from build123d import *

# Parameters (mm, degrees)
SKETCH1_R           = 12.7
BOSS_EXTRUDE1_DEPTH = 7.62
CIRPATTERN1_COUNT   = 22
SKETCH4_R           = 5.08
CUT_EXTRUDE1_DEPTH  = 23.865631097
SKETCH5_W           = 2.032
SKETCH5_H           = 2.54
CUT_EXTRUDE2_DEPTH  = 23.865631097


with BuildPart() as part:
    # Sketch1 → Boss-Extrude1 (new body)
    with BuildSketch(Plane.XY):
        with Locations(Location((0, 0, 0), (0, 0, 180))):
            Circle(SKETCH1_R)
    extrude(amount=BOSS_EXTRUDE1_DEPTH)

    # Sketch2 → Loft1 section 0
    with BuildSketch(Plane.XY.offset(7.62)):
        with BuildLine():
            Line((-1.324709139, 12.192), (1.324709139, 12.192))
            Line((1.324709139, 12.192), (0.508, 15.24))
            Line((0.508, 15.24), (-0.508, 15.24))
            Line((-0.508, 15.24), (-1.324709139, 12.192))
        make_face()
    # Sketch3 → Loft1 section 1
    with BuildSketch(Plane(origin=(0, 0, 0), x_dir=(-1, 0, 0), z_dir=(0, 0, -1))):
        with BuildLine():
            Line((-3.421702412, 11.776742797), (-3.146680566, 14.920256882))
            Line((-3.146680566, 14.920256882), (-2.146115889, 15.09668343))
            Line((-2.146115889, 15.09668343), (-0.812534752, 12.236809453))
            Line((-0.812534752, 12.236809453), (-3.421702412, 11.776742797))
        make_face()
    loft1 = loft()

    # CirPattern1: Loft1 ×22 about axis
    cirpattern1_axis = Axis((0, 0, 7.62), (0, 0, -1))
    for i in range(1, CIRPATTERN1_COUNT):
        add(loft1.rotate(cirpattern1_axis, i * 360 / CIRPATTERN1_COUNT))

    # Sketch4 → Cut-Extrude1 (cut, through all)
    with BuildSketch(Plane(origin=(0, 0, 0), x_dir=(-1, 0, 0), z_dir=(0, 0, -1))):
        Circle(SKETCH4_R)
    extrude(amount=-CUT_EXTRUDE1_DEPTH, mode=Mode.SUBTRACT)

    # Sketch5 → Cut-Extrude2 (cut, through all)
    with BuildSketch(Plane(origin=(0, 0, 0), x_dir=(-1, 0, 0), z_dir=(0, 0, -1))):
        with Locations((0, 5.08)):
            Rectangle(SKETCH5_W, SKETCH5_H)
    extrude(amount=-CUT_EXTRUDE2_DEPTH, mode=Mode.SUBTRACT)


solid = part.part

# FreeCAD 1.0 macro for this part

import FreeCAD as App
import Part
import Sketcher

V = App.Vector
Q = App.Units.Quantity

doc = App.newDocument("Part")
params = doc.addObject("Spreadsheet::Sheet", "Params")
for row, (alias, value) in enumerate([
    ("sketch1_diameter", "1 in"),
    ("pad1_length", "0.3 in"),
    ("sketch2_width", "0.04 in"),
    ("sketch3_length", "0.04 in"),
    ("sketch4_diameter", "0.4 in"),
    ("sketch5_height", "0.1 in"),
    ("sketch5_width", "0.08 in"),
], start=1):
    params.set(f"A{row}", alias)
    params.set(f"B{row}", "=" + value)
    params.setAlias(f"B{row}", alias)

body = doc.addObject("PartDesign::Body", "Body")

# Sketch on XY plane
sketch1 = doc.addObject("Sketcher::SketchObject", "Sketch")
body.addObject(sketch1)
sketch1.AttachmentSupport = (doc.XY_Plane, [""])
sketch1.MapMode = "FlatFace"
sketch1.addGeometry(Part.Circle(V(0, 0, 0), V(0, 0, 1), 12.7), False)
sketch1.addConstraint([
    Sketcher.Constraint("Coincident", 0, 3, -1, 1),
    Sketcher.Constraint("Diameter", 0, Q("1 in")),
])
sketch1.setExpression("Constraints[1]", "Params.sketch1_diameter")
pad1 = doc.addObject("PartDesign::Pad", "Pad")
body.addObject(pad1)
pad1.Profile = sketch1
pad1.setExpression("Length", "Params.pad1_length")

# Sketch on XY plane
sketch2 = doc.addObject("Sketcher::SketchObject", "Sketch001")
body.addObject(sketch2)
sketch2.AttachmentSupport = (doc.XY_Plane, [""])
sketch2.MapMode = "FlatFace"
sketch2.AttachmentOffset = App.Placement(V(0, 0, 0.3 * 25.4), App.Rotation())
sketch2.addGeometry([
    Part.LineSegment(V(-1.324709, 12.192, 0), V(1.324709, 12.192, 0)),
    Part.LineSegment(V(1.324709, 12.192, 0), V(0.508, 15.24, 0)),
    Part.LineSegment(V(0.508, 15.24, 0), V(-0.508, 15.24, 0)),
    Part.LineSegment(V(-0.508, 15.24, 0), V(-1.324709, 12.192, 0)),
], False)
sketch2.addConstraint([
    Sketcher.Constraint("Coincident", 0, 2, 1, 1),
    Sketcher.Constraint("Coincident", 1, 2, 2, 1),
    Sketcher.Constraint("Coincident", 2, 2, 3, 1),
    Sketcher.Constraint("Coincident", 3, 2, 0, 1),
    Sketcher.Constraint("Horizontal", 0),
    Sketcher.Constraint("Horizontal", 2),
    Sketcher.Constraint("Equal", 1, 3),
    Sketcher.Constraint("Angle", 1, Q("105 deg")),
    Sketcher.Constraint("DistanceX", 2, 2, 2, 1, Q("0.04 in")),
    Sketcher.Constraint("DistanceY", -1, 1, 1, 2, Q("0.6 in")),
    Sketcher.Constraint("DistanceY", -1, 1, 0, 2, Q("0.48 in")),
    Sketcher.Constraint("DistanceX", -1, 1, 1, 2, Q("0.02 in")),
])
sketch2.setExpression("Constraints[8]", "Params.sketch2_width")

# Sketch on XY plane
sketch3 = doc.addObject("Sketcher::SketchObject", "Sketch002")
body.addObject(sketch3)
sketch3.AttachmentSupport = (doc.XY_Plane, [""])
sketch3.MapMode = "FlatFace"
sketch3.addGeometry([
    Part.LineSegment(V(3.146681, 14.920257, 0), V(3.421702, 11.776743, 0)),
    Part.LineSegment(V(3.421702, 11.776743, 0), V(0.812535, 12.236809, 0)),
    Part.LineSegment(V(0.812535, 12.236809, 0), V(2.146116, 15.096683, 0)),
    Part.LineSegment(V(2.146116, 15.096683, 0), V(3.146681, 14.920257, 0)),
], False)
sketch3.addConstraint([
    Sketcher.Constraint("Coincident", 0, 2, 1, 1),
    Sketcher.Constraint("Coincident", 1, 2, 2, 1),
    Sketcher.Constraint("Coincident", 2, 2, 3, 1),
    Sketcher.Constraint("Coincident", 3, 2, 0, 1),
    Sketcher.Constraint("Parallel", 1, 3),
    Sketcher.Constraint("Equal", 0, 2),
    Sketcher.Constraint("Angle", 0, Q("-85 deg")),
    Sketcher.Constraint("Angle", 1, Q("170 deg")),
    Sketcher.Constraint("Distance", 3, Q("0.04 in")),
    Sketcher.Constraint("Distance", 0, Q("3.155522 mm")),
    Sketcher.Constraint("DistanceY", -1, 1, 1, 2, Q("12.236809 mm")),
    Sketcher.Constraint("DistanceX", -1, 1, 3, 2, Q("3.146681 mm")),
])
sketch3.setExpression("Constraints[8]", "Params.sketch3_length")

additiveloft = doc.addObject("PartDesign::AdditiveLoft", "AdditiveLoft")
body.addObject(additiveloft)
additiveloft.Profile = sketch2
additiveloft.Sections = [sketch3]
doc.recompute()

polarpattern = doc.addObject("PartDesign::PolarPattern", "PolarPattern")
body.addObject(polarpattern)
polarpattern.Originals = [additiveloft]
polarpattern.Axis = (doc.Z_Axis, [""])
polarpattern.Angle = 360
polarpattern.Occurrences = 22
body.Tip = polarpattern

# Sketch on XY plane
sketch4 = doc.addObject("Sketcher::SketchObject", "Sketch003")
body.addObject(sketch4)
sketch4.AttachmentSupport = (doc.XY_Plane, [""])
sketch4.MapMode = "FlatFace"
sketch4.addGeometry(Part.Circle(V(0, 0, 0), V(0, 0, 1), 5.08), False)
sketch4.addConstraint([
    Sketcher.Constraint("Coincident", 0, 3, -1, 1),
    Sketcher.Constraint("Diameter", 0, Q("0.4 in")),
])
sketch4.setExpression("Constraints[1]", "Params.sketch4_diameter")
pocket1 = doc.addObject("PartDesign::Pocket", "Pocket")
body.addObject(pocket1)
pocket1.Profile = sketch4
pocket1.Type = "ThroughAll"
pocket1.Reversed = True

# Sketch on XY plane
sketch5 = doc.addObject("Sketcher::SketchObject", "Sketch004")
body.addObject(sketch5)
sketch5.AttachmentSupport = (doc.XY_Plane, [""])
sketch5.MapMode = "FlatFace"
sketch5.addGeometry([
    Part.LineSegment(V(1.016, 6.35, 0), V(1.016, 3.81, 0)),
    Part.LineSegment(V(1.016, 3.81, 0), V(-1.016, 3.81, 0)),
    Part.LineSegment(V(-1.016, 3.81, 0), V(-1.016, 6.35, 0)),
    Part.LineSegment(V(-1.016, 6.35, 0), V(1.016, 6.35, 0)),
], False)
sketch5.addConstraint([
    Sketcher.Constraint("Coincident", 0, 2, 1, 1),
    Sketcher.Constraint("Coincident", 1, 2, 2, 1),
    Sketcher.Constraint("Coincident", 2, 2, 3, 1),
    Sketcher.Constraint("Coincident", 3, 2, 0, 1),
    Sketcher.Constraint("Vertical", 0),
    Sketcher.Constraint("Horizontal", 1),
    Sketcher.Constraint("Vertical", 2),
    Sketcher.Constraint("Horizontal", 3),
    Sketcher.Constraint("DistanceY", 0, 2, 0, 1, Q("0.1 in")),
    Sketcher.Constraint("DistanceX", 1, 2, 1, 1, Q("0.08 in")),
    Sketcher.Constraint("DistanceX", -1, 1, 0, 2, Q("0.04 in")),
    Sketcher.Constraint("DistanceY", -1, 1, 0, 2, Q("0.15 in")),
])
sketch5.setExpression("Constraints[8]", "Params.sketch5_height")
sketch5.setExpression("Constraints[9]", "Params.sketch5_width")
pocket2 = doc.addObject("PartDesign::Pocket", "Pocket001")
body.addObject(pocket2)
pocket2.Profile = sketch5
pocket2.Type = "ThroughAll"
pocket2.Reversed = True

doc.recompute()
